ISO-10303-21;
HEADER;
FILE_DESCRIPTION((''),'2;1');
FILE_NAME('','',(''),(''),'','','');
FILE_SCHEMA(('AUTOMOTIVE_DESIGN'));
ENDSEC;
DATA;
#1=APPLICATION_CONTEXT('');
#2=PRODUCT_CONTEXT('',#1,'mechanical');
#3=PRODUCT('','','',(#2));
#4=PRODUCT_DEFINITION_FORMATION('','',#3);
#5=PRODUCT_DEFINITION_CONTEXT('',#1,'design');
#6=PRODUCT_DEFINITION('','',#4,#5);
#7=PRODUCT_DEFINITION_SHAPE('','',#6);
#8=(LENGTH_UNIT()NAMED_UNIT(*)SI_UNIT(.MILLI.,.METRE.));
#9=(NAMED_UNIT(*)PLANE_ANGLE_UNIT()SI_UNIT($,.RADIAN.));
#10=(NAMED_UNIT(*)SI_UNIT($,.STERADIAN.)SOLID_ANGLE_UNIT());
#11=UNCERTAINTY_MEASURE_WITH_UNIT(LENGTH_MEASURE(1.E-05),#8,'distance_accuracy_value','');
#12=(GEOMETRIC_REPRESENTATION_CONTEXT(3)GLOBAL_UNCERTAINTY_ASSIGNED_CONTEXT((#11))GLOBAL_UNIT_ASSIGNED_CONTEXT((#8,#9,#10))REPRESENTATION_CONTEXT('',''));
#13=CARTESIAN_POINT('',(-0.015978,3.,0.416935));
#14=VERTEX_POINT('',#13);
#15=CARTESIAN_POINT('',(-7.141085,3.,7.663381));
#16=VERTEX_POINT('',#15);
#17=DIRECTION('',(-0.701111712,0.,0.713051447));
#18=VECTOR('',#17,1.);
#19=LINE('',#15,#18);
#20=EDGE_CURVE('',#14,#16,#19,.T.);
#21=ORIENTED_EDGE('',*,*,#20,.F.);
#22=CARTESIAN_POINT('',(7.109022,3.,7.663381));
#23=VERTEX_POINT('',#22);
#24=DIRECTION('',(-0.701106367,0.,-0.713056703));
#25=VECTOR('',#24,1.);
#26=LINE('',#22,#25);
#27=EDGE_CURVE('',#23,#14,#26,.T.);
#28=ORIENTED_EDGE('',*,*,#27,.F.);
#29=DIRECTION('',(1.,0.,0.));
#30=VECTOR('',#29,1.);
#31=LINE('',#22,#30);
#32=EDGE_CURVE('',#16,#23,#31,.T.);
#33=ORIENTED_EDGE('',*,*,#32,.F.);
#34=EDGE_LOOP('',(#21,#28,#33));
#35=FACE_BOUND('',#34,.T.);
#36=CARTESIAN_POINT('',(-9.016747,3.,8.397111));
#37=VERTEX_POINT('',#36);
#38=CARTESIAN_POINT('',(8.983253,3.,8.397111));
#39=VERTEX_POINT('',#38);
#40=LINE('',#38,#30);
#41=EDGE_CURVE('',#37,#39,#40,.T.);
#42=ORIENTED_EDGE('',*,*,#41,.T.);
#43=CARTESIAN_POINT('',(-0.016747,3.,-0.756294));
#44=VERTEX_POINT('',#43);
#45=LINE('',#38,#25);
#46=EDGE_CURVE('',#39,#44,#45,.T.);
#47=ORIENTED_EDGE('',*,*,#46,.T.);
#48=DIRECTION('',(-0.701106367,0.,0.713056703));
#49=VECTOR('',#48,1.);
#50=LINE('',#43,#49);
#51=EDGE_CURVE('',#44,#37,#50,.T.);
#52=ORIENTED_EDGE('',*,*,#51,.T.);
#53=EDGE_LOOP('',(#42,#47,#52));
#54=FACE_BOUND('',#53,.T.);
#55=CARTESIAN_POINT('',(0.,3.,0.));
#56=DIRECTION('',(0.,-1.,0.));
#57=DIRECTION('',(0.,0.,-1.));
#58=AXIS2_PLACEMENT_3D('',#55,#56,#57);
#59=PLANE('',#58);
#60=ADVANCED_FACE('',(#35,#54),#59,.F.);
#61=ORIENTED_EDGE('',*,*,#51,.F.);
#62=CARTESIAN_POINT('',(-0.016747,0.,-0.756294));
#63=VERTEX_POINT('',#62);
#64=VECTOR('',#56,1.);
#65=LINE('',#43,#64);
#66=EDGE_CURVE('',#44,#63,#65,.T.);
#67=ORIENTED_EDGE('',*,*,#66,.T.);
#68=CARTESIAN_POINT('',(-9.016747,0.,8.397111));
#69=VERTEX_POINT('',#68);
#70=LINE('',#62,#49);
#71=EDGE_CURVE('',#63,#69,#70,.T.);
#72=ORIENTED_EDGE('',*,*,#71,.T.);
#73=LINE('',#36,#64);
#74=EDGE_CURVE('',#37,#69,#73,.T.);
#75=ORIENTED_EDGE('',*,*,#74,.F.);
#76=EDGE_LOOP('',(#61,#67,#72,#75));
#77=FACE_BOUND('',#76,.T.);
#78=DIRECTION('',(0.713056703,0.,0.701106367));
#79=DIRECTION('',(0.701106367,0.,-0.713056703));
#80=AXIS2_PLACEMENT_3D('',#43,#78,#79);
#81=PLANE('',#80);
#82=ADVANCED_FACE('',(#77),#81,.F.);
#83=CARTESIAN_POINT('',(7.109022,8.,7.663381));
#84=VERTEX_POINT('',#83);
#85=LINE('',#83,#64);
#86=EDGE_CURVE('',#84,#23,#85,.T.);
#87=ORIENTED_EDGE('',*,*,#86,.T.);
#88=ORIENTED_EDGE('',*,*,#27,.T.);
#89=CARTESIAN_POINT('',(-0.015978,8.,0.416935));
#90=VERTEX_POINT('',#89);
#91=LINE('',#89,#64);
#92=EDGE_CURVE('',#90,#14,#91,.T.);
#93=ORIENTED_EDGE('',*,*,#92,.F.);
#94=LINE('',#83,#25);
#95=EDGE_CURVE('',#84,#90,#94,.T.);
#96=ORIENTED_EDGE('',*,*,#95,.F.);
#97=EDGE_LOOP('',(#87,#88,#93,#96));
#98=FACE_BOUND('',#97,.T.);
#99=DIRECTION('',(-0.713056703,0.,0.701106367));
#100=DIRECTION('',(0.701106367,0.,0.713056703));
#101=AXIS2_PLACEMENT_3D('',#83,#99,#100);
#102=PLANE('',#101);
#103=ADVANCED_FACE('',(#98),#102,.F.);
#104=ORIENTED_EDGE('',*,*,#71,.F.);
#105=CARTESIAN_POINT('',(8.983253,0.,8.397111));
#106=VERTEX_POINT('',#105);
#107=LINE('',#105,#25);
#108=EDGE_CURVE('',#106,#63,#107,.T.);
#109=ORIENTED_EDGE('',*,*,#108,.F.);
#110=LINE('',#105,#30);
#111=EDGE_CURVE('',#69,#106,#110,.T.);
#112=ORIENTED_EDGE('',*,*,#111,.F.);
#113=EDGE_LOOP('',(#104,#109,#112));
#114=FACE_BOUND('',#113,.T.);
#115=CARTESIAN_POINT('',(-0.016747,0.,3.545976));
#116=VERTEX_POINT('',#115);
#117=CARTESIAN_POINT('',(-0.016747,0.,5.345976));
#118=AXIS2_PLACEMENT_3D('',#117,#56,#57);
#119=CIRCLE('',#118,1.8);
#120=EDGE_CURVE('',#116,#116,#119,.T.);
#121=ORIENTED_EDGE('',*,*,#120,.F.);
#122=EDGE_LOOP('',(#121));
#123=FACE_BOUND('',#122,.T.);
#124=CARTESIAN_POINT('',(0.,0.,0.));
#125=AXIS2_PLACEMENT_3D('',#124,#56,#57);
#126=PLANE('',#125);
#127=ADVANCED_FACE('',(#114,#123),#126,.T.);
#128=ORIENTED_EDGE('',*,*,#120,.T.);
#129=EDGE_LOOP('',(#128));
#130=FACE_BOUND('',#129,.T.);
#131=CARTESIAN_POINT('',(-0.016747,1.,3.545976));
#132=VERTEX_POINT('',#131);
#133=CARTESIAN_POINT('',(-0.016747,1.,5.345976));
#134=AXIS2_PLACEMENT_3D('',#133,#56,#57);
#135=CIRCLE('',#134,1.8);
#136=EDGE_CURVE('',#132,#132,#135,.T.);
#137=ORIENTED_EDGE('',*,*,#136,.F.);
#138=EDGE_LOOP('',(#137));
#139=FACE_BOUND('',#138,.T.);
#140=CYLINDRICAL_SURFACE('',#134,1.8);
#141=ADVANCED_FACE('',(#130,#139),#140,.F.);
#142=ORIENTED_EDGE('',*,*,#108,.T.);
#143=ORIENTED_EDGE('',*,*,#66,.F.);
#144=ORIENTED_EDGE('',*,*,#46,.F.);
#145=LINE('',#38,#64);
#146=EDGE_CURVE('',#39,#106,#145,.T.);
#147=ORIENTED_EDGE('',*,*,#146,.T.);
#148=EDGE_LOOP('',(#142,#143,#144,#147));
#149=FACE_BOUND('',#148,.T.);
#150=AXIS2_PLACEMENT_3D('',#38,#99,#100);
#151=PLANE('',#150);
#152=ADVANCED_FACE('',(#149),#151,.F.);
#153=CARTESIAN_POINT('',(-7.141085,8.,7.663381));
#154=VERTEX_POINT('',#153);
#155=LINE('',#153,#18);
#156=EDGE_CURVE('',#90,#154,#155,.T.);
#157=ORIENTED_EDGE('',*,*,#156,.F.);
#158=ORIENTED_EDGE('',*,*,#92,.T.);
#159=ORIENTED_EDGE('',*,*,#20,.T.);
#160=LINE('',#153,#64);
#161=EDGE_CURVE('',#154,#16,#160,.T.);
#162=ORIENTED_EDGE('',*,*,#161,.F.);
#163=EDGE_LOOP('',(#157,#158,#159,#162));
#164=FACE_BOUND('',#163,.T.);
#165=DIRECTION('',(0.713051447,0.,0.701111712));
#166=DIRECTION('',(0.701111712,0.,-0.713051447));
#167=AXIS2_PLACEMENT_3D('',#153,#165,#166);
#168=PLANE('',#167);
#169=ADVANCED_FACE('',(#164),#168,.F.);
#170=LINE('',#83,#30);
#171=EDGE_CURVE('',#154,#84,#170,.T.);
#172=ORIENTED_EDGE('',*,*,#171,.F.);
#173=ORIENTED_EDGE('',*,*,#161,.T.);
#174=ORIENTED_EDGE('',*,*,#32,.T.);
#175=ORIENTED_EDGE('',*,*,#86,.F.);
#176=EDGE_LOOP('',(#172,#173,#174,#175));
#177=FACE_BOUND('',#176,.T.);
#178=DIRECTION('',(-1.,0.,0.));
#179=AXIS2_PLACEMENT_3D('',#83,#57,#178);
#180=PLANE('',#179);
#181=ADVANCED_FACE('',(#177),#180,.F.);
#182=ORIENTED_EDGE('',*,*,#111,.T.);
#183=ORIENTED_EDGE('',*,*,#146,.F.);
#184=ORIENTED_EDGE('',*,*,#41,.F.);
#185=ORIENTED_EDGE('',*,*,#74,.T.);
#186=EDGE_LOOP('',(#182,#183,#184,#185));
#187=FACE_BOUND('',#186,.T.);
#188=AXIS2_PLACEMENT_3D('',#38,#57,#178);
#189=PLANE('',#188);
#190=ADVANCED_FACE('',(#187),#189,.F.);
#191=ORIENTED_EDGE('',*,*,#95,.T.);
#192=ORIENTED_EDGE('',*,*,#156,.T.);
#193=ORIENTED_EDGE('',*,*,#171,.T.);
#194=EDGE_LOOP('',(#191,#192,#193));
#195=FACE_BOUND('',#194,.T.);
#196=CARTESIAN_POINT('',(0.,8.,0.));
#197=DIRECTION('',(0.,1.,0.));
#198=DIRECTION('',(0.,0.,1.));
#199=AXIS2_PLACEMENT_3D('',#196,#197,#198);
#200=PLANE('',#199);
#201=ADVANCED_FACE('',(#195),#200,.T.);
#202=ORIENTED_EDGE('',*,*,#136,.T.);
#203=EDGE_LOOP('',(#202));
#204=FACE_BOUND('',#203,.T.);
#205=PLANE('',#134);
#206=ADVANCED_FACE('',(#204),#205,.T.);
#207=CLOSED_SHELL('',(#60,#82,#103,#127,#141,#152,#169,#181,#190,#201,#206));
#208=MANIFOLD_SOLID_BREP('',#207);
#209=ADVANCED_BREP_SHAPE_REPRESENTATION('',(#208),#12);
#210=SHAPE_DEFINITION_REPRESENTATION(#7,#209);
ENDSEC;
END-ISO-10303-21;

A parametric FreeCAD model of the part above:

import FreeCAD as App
import Part
import Sketcher

V = App.Vector
Q = App.Units.Quantity


def add_polygon(sketch, points):
    """Adds a closed chain of lines whose ends are joined by coincident constraints."""
    first, n = sketch.GeometryCount, len(points)
    for a, b in zip(points, points[1:] + points[:1]):
        sketch.addGeometry(Part.LineSegment(App.Vector(*a, 0), App.Vector(*b, 0)), False)
    for i in range(n):
        sketch.addConstraint(Sketcher.Constraint("Coincident", first + i, 2, first + (i + 1) % n, 1))

doc = App.newDocument("Part")
body = doc.addObject("PartDesign::Body", "Body")

# Sketch on XZ plane
sketch1 = body.newObject("Sketcher::SketchObject", "Sketch")
sketch1.AttachmentSupport = (doc.getObject("XZ_Plane"), [""])
sketch1.MapMode = "FlatFace"
add_polygon(sketch1, [(-9, 8), (9, 8), (0, -1)])  # lines 0-2
sketch1.addConstraint([
    Sketcher.Constraint("Horizontal", 0),
    Sketcher.Constraint("Equal", 1, 2),
    Sketcher.Constraint("DistanceX", 0, 1, 0, 2, Q("18 mm")),
    Sketcher.Constraint("DistanceY", -1, 1, 0, 2, Q("8.397111 mm")),
    Sketcher.Constraint("Distance", 1, Q("12.836854 mm")),
    Sketcher.Constraint("DistanceX", -1, 1, 0, 2, Q("8.983253 mm")),
])
pad1 = body.newObject("PartDesign::Pad", "Pad")
pad1.Profile = sketch1
pad1.Length = 3
pad1.Reversed = True

# Sketch on XZ plane
sketch2 = body.newObject("Sketcher::SketchObject", "Sketch001")
sketch2.AttachmentSupport = (doc.getObject("XZ_Plane"), [""])
sketch2.MapMode = "FlatFace"
sketch2.AttachmentOffset = App.Placement(V(0, 0, -3), App.Rotation())
add_polygon(sketch2, [(7, 8), (0, 0), (-7, 8)])  # lines 0-2
sketch2.addConstraint([
    Sketcher.Constraint("Horizontal", 2),
    Sketcher.Constraint("DistanceX", 0, 2, 2, 2, Q("7.125 mm")),
    Sketcher.Constraint("Distance", 0, Q("10.162509 mm")),
    Sketcher.Constraint("DistanceX", 2, 1, 2, 2, Q("14.250107 mm")),
    Sketcher.Constraint("DistanceX", 0, 2, -1, 1, Q("0.015978 mm")),
    Sketcher.Constraint("DistanceY", -1, 1, 1, 2, Q("7.663381 mm")),
])
pad2 = body.newObject("PartDesign::Pad", "Pad001")
pad2.Profile = sketch2
pad2.Length = 5
pad2.Reversed = True

# Sketch on XZ plane
sketch3 = body.newObject("Sketcher::SketchObject", "Sketch002")
sketch3.AttachmentSupport = (doc.getObject("XZ_Plane"), [""])
sketch3.MapMode = "FlatFace"
sketch3.addGeometry(Part.Circle(V(0, 5.3, 0), V(0, 0, 1), 1.8), False)
sketch3.addConstraint([
    Sketcher.Constraint("Diameter", 0, Q("3.6 mm")),
    Sketcher.Constraint("DistanceX", 0, 3, -1, 1, Q("0.016747 mm")),
    Sketcher.Constraint("DistanceY", -1, 1, 0, 3, Q("5.345976 mm")),
])
pocket1 = body.newObject("PartDesign::Pocket", "Pocket")
pocket1.Profile = sketch3
pocket1.Length = 1

doc.recompute()
